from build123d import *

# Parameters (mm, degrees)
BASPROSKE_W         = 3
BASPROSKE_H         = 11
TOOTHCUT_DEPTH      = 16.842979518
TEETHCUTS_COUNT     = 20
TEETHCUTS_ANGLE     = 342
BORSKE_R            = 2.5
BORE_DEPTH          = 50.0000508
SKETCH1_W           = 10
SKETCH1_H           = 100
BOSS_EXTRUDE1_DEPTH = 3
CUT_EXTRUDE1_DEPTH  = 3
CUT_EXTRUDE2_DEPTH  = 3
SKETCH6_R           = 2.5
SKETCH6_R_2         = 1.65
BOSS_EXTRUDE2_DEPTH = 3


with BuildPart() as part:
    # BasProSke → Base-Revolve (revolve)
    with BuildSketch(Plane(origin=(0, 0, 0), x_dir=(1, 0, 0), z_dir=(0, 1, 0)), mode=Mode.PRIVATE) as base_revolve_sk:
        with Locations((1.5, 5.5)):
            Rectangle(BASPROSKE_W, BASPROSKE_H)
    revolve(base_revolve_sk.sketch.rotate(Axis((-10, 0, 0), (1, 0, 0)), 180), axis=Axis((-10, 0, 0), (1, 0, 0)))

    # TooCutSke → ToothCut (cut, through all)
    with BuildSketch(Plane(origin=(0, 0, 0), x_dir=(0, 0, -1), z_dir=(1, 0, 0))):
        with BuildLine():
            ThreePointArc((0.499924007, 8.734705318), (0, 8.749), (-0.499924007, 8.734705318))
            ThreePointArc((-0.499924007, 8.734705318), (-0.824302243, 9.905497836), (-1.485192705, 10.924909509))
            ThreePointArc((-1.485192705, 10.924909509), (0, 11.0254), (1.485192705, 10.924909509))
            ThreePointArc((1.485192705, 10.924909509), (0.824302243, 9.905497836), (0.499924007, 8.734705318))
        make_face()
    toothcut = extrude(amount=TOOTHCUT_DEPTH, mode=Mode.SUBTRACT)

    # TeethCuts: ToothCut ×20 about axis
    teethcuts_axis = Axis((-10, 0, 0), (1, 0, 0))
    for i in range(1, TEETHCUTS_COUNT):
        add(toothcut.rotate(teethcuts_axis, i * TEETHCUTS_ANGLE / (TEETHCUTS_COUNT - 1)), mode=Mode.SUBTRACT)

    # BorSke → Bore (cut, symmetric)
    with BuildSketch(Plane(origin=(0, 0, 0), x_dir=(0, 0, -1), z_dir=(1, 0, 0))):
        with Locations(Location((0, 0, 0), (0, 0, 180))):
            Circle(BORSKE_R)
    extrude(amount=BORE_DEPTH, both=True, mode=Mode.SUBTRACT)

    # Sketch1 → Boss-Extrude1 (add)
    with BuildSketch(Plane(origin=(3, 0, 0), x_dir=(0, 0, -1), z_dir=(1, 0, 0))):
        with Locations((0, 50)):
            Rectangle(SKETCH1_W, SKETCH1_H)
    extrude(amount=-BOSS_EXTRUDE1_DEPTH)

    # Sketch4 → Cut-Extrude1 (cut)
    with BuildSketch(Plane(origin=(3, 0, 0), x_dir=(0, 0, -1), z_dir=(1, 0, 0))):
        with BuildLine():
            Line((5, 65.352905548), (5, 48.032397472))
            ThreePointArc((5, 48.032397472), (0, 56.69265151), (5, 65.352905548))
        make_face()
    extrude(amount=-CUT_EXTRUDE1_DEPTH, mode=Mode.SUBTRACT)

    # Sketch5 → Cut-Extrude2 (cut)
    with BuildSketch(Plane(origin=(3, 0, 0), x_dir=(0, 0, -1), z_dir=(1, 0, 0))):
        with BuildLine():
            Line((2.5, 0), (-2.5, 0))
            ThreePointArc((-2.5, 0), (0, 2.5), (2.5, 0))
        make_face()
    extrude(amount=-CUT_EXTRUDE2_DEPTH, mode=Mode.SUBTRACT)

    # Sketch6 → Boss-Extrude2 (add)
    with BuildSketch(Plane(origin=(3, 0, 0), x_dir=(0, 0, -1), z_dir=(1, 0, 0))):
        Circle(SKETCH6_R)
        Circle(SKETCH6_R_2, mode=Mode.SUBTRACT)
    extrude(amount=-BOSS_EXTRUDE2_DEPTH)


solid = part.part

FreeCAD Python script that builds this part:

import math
import FreeCAD as App
import Part
import Sketcher

doc = App.newDocument("Part")
body = doc.addObject("PartDesign::Body", "Body")

sketch1 = body.newObject("Sketcher::SketchObject", "Sketch")
sketch1.AttachmentSupport = (doc.getObject("XZ_Plane"), [""])
sketch1.MapMode = "FlatFace"
sketch1.addGeometry([
    Part.LineSegment(App.Vector(0, -11, 0), App.Vector(0, 0, 0)),
    Part.LineSegment(App.Vector(0, 0, 0), App.Vector(3, 0, 0)),
    Part.LineSegment(App.Vector(3, 0, 0), App.Vector(3, -11, 0)),
    Part.LineSegment(App.Vector(3, -11, 0), App.Vector(0, -11, 0)),
], False)
sketch1.addConstraint([
    Sketcher.Constraint("Coincident", 0, 2, 1, 1),
    Sketcher.Constraint("Coincident", 1, 2, 2, 1),
    Sketcher.Constraint("Coincident", 2, 2, 3, 1),
    Sketcher.Constraint("Coincident", 3, 2, 0, 1),
    Sketcher.Constraint("Vertical", 0),
    Sketcher.Constraint("Horizontal", 1),
    Sketcher.Constraint("Vertical", 2),
    Sketcher.Constraint("Horizontal", 3),
    Sketcher.Constraint("Coincident", 0, 2, -1, 1),
    Sketcher.Constraint("DistanceX", 1, 1, 1, 2, 3.0),
    Sketcher.Constraint("DistanceY", 0, 1, 0, 2, 11.0),
])
revolution = body.newObject("PartDesign::Revolution", "Revolution")
revolution.Profile = sketch1
revolution.ReferenceAxis = (sketch1, ["H_Axis"])
revolution.Angle = 360

sketch2 = body.newObject("Sketcher::SketchObject", "Sketch001")
sketch2.AttachmentSupport = (doc.getObject("YZ_Plane"), [""])
sketch2.MapMode = "FlatFace"
sketch2.addGeometry([
    Part.ArcOfCircle(Part.Circle(App.Vector(0, 0, 0), App.Vector(0, 0, 1), 8.749), math.radians(-3.275705), math.radians(3.275705)),
    Part.ArcOfCircle(Part.Circle(App.Vector(8.264487, -4.47219, 0), App.Vector(0, 0, 1), 4), math.radians(48.309566), math.radians(83.249005)),
    Part.ArcOfCircle(Part.Circle(App.Vector(0, 0, 0), App.Vector(0, 0, 1), 11.0254), math.radians(-7.741647), math.radians(7.741647)),
    Part.ArcOfCircle(Part.Circle(App.Vector(8.264487, 4.47219, 0), App.Vector(0, 0, 1), 4), math.radians(-83.249005), math.radians(-48.309566)),
], False)
sketch2.addConstraint([
    Sketcher.Constraint("Coincident", 0, 1, 1, 2),
    Sketcher.Constraint("Coincident", 1, 1, 2, 1),
    Sketcher.Constraint("Coincident", 2, 2, 3, 2),
    Sketcher.Constraint("Coincident", 3, 1, 0, 2),
    Sketcher.Constraint("Coincident", 0, 3, -1, 1),
    Sketcher.Constraint("Coincident", 2, 3, -1, 1),
    Sketcher.Constraint("Equal", 1, 3),
    Sketcher.Constraint("Symmetric", 1, 3, 3, 3, -1),
    Sketcher.Constraint("Radius", 1, 4.0),
    Sketcher.Constraint("Radius", 0, 8.749),
    Sketcher.Constraint("Radius", 2, 11.0254),
    Sketcher.Constraint("DistanceY", 1, 3, -1, 1, 4.47219),
    Sketcher.Constraint("DistanceX", -1, 1, 1, 1, 10.92491),
])
pocket1 = body.newObject("PartDesign::Pocket", "Pocket")
pocket1.Profile = sketch2
pocket1.Type = "ThroughAll"
pocket1.Reversed = True
doc.recompute()

polarpattern = body.newObject("PartDesign::PolarPattern", "PolarPattern")
polarpattern.Originals = [pocket1]
polarpattern.Axis = (doc.getObject("X_Axis"), [""])
polarpattern.Angle = 360
polarpattern.Occurrences = 20
body.Tip = polarpattern

sketch3 = body.newObject("Sketcher::SketchObject", "Sketch002")
sketch3.AttachmentSupport = (doc.getObject("YZ_Plane"), [""])
sketch3.MapMode = "FlatFace"
sketch3.addGeometry(Part.Circle(App.Vector(0, 0, 0), App.Vector(0, 0, 1), 2.5), False)
sketch3.addConstraint([
    Sketcher.Constraint("Coincident", 0, 3, -1, 1),
    Sketcher.Constraint("Diameter", 0, 5.0),
])
pocket2 = body.newObject("PartDesign::Pocket", "Pocket001")
pocket2.Profile = sketch3
pocket2.Length = 100.000102
pocket2.Midplane = True

sketch4 = body.newObject("Sketcher::SketchObject", "Sketch003")
sketch4.AttachmentSupport = (doc.getObject("YZ_Plane"), [""])
sketch4.MapMode = "FlatFace"
sketch4.AttachmentOffset = App.Placement(App.Vector(0, 0, 3), App.Rotation())
sketch4.addGeometry([
    Part.LineSegment(App.Vector(100, 5, 0), App.Vector(0, 5, 0)),
    Part.LineSegment(App.Vector(0, 5, 0), App.Vector(0, -5, 0)),
    Part.LineSegment(App.Vector(0, -5, 0), App.Vector(100, -5, 0)),
    Part.LineSegment(App.Vector(100, -5, 0), App.Vector(100, 5, 0)),
], False)
sketch4.addConstraint([
    Sketcher.Constraint("Coincident", 0, 2, 1, 1),
    Sketcher.Constraint("Coincident", 1, 2, 2, 1),
    Sketcher.Constraint("Coincident", 2, 2, 3, 1),
    Sketcher.Constraint("Coincident", 3, 2, 0, 1),
    Sketcher.Constraint("Horizontal", 0),
    Sketcher.Constraint("Vertical", 1),
    Sketcher.Constraint("Horizontal", 2),
    Sketcher.Constraint("Vertical", 3),
    Sketcher.Constraint("Symmetric", 0, 2, 1, 2, -1, 1),
    Sketcher.Constraint("DistanceX", 0, 2, 0, 1, 100.0),
    Sketcher.Constraint("DistanceY", 1, 2, 1, 1, 10.0),
])
pad1 = body.newObject("PartDesign::Pad", "Pad")
pad1.Profile = sketch4
pad1.Length = 3
pad1.Reversed = True

sketch5 = body.newObject("Sketcher::SketchObject", "Sketch004")
sketch5.AttachmentSupport = (doc.getObject("YZ_Plane"), [""])
sketch5.MapMode = "FlatFace"
sketch5.AttachmentOffset = App.Placement(App.Vector(0, 0, 3), App.Rotation())
sketch5.addGeometry([
    Part.LineSegment(App.Vector(48.032397, -5, 0), App.Vector(65.352906, -5, 0)),
    Part.ArcOfCircle(Part.Circle(App.Vector(56.692652, -10, 0), App.Vector(0, 0, 1), 10), math.radians(30), math.radians(150)),
], False)
sketch5.addConstraint([
    Sketcher.Constraint("Coincident", 0, 1, 1, 2),
    Sketcher.Constraint("Coincident", 1, 1, 0, 2),
    Sketcher.Constraint("Horizontal", 0),
    Sketcher.Constraint("Radius", 1, 10.0),
    Sketcher.Constraint("DistanceY", 1, 3, -1, 1, 10.0),
    Sketcher.Constraint("DistanceY", 0, 1, -1, 1, 5.0),
    Sketcher.Constraint("DistanceX", -1, 1, 1, 3, 56.692652),
])
pocket3 = body.newObject("PartDesign::Pocket", "Pocket002")
pocket3.Profile = sketch5
pocket3.Length = 3

sketch6 = body.newObject("Sketcher::SketchObject", "Sketch005")
sketch6.AttachmentSupport = (doc.getObject("YZ_Plane"), [""])
sketch6.MapMode = "FlatFace"
sketch6.AttachmentOffset = App.Placement(App.Vector(0, 0, 3), App.Rotation())
sketch6.addGeometry([
    Part.LineSegment(App.Vector(0, 2.5, 0), App.Vector(0, -2.5, 0)),
    Part.ArcOfCircle(Part.Circle(App.Vector(0, 0, 0), App.Vector(0, 0, 1), 2.5), math.radians(-90), math.radians(90)),
], False)
sketch6.addConstraint([
    Sketcher.Constraint("Coincident", 0, 1, 1, 2),
    Sketcher.Constraint("Coincident", 1, 1, 0, 2),
    Sketcher.Constraint("Vertical", 0),
    Sketcher.Constraint("Coincident", 1, 3, -1, 1),
    Sketcher.Constraint("PointOnObject", 0, 1, -2),
    Sketcher.Constraint("Radius", 1, 2.5),
])
pocket4 = body.newObject("PartDesign::Pocket", "Pocket003")
pocket4.Profile = sketch6
pocket4.Length = 3

sketch7 = body.newObject("Sketcher::SketchObject", "Sketch006")
sketch7.AttachmentSupport = (doc.getObject("YZ_Plane"), [""])
sketch7.MapMode = "FlatFace"
sketch7.AttachmentOffset = App.Placement(App.Vector(0, 0, 3), App.Rotation())
sketch7.addGeometry([
    Part.Circle(App.Vector(0, 0, 0), App.Vector(0, 0, 1), 2.5),
    Part.Circle(App.Vector(0, 0, 0), App.Vector(0, 0, 1), 1.65),
], False)
sketch7.addConstraint([
    Sketcher.Constraint("Coincident", 0, 3, -1, 1),
    Sketcher.Constraint("Coincident", 1, 3, -1, 1),
    Sketcher.Constraint("Diameter", 0, 5.0),
    Sketcher.Constraint("Diameter", 1, 3.3),
])
pad2 = body.newObject("PartDesign::Pad", "Pad001")
pad2.Profile = sketch7
pad2.Length = 3
pad2.Reversed = True

doc.recompute()
